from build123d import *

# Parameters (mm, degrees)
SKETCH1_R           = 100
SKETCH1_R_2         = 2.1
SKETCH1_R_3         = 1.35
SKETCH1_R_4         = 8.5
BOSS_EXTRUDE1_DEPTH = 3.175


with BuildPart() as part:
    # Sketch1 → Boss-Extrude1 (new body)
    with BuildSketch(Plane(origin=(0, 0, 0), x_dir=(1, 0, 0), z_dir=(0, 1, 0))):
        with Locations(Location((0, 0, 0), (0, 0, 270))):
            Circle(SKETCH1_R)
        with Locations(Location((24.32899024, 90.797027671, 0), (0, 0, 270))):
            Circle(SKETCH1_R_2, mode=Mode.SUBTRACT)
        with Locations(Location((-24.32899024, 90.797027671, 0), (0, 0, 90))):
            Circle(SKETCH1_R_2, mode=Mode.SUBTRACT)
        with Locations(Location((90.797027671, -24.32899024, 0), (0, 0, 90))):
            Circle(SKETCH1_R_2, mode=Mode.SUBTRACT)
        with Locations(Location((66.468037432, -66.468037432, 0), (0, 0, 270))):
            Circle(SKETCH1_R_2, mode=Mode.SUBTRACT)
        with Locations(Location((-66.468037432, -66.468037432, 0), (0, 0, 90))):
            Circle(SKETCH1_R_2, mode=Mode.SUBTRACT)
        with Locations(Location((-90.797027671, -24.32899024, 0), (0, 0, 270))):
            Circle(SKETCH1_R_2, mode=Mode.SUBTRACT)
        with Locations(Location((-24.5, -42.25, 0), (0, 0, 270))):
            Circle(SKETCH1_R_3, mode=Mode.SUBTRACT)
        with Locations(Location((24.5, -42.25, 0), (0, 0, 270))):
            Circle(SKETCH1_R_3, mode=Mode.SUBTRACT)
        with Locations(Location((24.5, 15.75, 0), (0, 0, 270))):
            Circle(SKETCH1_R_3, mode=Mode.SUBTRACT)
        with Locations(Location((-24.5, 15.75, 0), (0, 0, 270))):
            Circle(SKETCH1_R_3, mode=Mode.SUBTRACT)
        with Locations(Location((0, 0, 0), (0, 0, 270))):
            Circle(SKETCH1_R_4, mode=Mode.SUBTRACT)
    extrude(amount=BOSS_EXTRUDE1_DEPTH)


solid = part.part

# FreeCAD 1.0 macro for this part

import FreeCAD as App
import Part
import Sketcher

V = App.Vector
Q = App.Units.Quantity

doc = App.newDocument("Part")
body = doc.addObject("PartDesign::Body", "Body")

# Sketch on XZ plane
sketch1 = doc.addObject("Sketcher::SketchObject", "Sketch")
body.addObject(sketch1)
sketch1.AttachmentSupport = (doc.XZ_Plane, [""])
sketch1.MapMode = "FlatFace"
sketch1.addGeometry([
    Part.Circle(V(0, 0, 0), V(0, 0, 1), 100),  # 0
    Part.Circle(V(-24.3, -90.8, 0), V(0, 0, 1), 2.1),  # 1
    Part.Circle(V(-24.5, -15.8, 0), V(0, 0, 1), 1.4),  # 2
    Part.Circle(V(-90.8, 24.3, 0), V(0, 0, 1), 2.1),  # 3
    Part.Circle(V(-66.5, 66.5, 0), V(0, 0, 1), 2.1),  # 4
    Part.Circle(V(-24.5, 42.2, 0), V(0, 0, 1), 1.4),  # 5
    Part.Circle(V(24.3, -90.8, 0), V(0, 0, 1), 2.1),  # 6
    Part.Circle(V(24.5, -15.8, 0), V(0, 0, 1), 1.4),  # 7
    Part.Circle(V(0, 0, 0), V(0, 0, 1), 8.5),  # 8
    Part.Circle(V(24.5, 42.2, 0), V(0, 0, 1), 1.4),  # 9
    Part.Circle(V(90.8, 24.3, 0), V(0, 0, 1), 2.1),  # 10
    Part.Circle(V(66.5, 66.5, 0), V(0, 0, 1), 2.1),  # 11
], False)
sketch1.addConstraint([
    Sketcher.Constraint("Coincident", 0, 3, -1, 1),
    Sketcher.Constraint("Coincident", 8, 3, -1, 1),
    Sketcher.Constraint("Equal", 1, 3),
    Sketcher.Constraint("Equal", 3, 4),
    Sketcher.Constraint("Equal", 2, 5),
    Sketcher.Constraint("Equal", 4, 6),
    Sketcher.Constraint("Equal", 5, 7),
    Sketcher.Constraint("Equal", 7, 9),
    Sketcher.Constraint("Equal", 6, 10),
    Sketcher.Constraint("Equal", 10, 11),
    Sketcher.Constraint("Symmetric", 1, 3, 6, 3, -2),
    Sketcher.Constraint("Symmetric", 2, 3, 7, 3, -2),
    Sketcher.Constraint("Symmetric", 5, 3, 9, 3, -2),
    Sketcher.Constraint("Symmetric", 3, 3, 10, 3, -2),
    Sketcher.Constraint("Symmetric", 4, 3, 11, 3, -2),
    Sketcher.Constraint("Vertical", 2, 3, 5, 3),
    Sketcher.Constraint("Diameter", 0, Q("200 mm")),
    Sketcher.Constraint("Diameter", 8, Q("17 mm")),
    Sketcher.Constraint("Diameter", 1, Q("4.2 mm")),
    Sketcher.Constraint("Diameter", 2, Q("2.7 mm")),
    Sketcher.Constraint("DistanceY", 2, 3, 5, 3, Q("58 mm")),
    Sketcher.Constraint("DistanceX", 2, 3, 7, 3, Q("49 mm")),
    Sketcher.Constraint("DistanceY", 2, 3, -1, 1, Q("15.75 mm")),
    Sketcher.Constraint("DistanceX", 1, 3, -1, 1, Q("24.32899 mm")),
    Sketcher.Constraint("DistanceY", -1, 1, 3, 3, Q("24.32899 mm")),
    Sketcher.Constraint("DistanceX", 3, 3, 4, 3, Q("24.32899 mm")),
    Sketcher.Constraint("DistanceY", 1, 3, -1, 1, Q("90.797028 mm")),
    Sketcher.Constraint("DistanceX", 3, 3, -1, 1, Q("90.797028 mm")),
    Sketcher.Constraint("DistanceY", -1, 1, 4, 3, Q("66.468037 mm")),
])
pad1 = doc.addObject("PartDesign::Pad", "Pad")
body.addObject(pad1)
pad1.Profile = sketch1
pad1.Length = 3.175
pad1.Reversed = True

doc.recompute()
